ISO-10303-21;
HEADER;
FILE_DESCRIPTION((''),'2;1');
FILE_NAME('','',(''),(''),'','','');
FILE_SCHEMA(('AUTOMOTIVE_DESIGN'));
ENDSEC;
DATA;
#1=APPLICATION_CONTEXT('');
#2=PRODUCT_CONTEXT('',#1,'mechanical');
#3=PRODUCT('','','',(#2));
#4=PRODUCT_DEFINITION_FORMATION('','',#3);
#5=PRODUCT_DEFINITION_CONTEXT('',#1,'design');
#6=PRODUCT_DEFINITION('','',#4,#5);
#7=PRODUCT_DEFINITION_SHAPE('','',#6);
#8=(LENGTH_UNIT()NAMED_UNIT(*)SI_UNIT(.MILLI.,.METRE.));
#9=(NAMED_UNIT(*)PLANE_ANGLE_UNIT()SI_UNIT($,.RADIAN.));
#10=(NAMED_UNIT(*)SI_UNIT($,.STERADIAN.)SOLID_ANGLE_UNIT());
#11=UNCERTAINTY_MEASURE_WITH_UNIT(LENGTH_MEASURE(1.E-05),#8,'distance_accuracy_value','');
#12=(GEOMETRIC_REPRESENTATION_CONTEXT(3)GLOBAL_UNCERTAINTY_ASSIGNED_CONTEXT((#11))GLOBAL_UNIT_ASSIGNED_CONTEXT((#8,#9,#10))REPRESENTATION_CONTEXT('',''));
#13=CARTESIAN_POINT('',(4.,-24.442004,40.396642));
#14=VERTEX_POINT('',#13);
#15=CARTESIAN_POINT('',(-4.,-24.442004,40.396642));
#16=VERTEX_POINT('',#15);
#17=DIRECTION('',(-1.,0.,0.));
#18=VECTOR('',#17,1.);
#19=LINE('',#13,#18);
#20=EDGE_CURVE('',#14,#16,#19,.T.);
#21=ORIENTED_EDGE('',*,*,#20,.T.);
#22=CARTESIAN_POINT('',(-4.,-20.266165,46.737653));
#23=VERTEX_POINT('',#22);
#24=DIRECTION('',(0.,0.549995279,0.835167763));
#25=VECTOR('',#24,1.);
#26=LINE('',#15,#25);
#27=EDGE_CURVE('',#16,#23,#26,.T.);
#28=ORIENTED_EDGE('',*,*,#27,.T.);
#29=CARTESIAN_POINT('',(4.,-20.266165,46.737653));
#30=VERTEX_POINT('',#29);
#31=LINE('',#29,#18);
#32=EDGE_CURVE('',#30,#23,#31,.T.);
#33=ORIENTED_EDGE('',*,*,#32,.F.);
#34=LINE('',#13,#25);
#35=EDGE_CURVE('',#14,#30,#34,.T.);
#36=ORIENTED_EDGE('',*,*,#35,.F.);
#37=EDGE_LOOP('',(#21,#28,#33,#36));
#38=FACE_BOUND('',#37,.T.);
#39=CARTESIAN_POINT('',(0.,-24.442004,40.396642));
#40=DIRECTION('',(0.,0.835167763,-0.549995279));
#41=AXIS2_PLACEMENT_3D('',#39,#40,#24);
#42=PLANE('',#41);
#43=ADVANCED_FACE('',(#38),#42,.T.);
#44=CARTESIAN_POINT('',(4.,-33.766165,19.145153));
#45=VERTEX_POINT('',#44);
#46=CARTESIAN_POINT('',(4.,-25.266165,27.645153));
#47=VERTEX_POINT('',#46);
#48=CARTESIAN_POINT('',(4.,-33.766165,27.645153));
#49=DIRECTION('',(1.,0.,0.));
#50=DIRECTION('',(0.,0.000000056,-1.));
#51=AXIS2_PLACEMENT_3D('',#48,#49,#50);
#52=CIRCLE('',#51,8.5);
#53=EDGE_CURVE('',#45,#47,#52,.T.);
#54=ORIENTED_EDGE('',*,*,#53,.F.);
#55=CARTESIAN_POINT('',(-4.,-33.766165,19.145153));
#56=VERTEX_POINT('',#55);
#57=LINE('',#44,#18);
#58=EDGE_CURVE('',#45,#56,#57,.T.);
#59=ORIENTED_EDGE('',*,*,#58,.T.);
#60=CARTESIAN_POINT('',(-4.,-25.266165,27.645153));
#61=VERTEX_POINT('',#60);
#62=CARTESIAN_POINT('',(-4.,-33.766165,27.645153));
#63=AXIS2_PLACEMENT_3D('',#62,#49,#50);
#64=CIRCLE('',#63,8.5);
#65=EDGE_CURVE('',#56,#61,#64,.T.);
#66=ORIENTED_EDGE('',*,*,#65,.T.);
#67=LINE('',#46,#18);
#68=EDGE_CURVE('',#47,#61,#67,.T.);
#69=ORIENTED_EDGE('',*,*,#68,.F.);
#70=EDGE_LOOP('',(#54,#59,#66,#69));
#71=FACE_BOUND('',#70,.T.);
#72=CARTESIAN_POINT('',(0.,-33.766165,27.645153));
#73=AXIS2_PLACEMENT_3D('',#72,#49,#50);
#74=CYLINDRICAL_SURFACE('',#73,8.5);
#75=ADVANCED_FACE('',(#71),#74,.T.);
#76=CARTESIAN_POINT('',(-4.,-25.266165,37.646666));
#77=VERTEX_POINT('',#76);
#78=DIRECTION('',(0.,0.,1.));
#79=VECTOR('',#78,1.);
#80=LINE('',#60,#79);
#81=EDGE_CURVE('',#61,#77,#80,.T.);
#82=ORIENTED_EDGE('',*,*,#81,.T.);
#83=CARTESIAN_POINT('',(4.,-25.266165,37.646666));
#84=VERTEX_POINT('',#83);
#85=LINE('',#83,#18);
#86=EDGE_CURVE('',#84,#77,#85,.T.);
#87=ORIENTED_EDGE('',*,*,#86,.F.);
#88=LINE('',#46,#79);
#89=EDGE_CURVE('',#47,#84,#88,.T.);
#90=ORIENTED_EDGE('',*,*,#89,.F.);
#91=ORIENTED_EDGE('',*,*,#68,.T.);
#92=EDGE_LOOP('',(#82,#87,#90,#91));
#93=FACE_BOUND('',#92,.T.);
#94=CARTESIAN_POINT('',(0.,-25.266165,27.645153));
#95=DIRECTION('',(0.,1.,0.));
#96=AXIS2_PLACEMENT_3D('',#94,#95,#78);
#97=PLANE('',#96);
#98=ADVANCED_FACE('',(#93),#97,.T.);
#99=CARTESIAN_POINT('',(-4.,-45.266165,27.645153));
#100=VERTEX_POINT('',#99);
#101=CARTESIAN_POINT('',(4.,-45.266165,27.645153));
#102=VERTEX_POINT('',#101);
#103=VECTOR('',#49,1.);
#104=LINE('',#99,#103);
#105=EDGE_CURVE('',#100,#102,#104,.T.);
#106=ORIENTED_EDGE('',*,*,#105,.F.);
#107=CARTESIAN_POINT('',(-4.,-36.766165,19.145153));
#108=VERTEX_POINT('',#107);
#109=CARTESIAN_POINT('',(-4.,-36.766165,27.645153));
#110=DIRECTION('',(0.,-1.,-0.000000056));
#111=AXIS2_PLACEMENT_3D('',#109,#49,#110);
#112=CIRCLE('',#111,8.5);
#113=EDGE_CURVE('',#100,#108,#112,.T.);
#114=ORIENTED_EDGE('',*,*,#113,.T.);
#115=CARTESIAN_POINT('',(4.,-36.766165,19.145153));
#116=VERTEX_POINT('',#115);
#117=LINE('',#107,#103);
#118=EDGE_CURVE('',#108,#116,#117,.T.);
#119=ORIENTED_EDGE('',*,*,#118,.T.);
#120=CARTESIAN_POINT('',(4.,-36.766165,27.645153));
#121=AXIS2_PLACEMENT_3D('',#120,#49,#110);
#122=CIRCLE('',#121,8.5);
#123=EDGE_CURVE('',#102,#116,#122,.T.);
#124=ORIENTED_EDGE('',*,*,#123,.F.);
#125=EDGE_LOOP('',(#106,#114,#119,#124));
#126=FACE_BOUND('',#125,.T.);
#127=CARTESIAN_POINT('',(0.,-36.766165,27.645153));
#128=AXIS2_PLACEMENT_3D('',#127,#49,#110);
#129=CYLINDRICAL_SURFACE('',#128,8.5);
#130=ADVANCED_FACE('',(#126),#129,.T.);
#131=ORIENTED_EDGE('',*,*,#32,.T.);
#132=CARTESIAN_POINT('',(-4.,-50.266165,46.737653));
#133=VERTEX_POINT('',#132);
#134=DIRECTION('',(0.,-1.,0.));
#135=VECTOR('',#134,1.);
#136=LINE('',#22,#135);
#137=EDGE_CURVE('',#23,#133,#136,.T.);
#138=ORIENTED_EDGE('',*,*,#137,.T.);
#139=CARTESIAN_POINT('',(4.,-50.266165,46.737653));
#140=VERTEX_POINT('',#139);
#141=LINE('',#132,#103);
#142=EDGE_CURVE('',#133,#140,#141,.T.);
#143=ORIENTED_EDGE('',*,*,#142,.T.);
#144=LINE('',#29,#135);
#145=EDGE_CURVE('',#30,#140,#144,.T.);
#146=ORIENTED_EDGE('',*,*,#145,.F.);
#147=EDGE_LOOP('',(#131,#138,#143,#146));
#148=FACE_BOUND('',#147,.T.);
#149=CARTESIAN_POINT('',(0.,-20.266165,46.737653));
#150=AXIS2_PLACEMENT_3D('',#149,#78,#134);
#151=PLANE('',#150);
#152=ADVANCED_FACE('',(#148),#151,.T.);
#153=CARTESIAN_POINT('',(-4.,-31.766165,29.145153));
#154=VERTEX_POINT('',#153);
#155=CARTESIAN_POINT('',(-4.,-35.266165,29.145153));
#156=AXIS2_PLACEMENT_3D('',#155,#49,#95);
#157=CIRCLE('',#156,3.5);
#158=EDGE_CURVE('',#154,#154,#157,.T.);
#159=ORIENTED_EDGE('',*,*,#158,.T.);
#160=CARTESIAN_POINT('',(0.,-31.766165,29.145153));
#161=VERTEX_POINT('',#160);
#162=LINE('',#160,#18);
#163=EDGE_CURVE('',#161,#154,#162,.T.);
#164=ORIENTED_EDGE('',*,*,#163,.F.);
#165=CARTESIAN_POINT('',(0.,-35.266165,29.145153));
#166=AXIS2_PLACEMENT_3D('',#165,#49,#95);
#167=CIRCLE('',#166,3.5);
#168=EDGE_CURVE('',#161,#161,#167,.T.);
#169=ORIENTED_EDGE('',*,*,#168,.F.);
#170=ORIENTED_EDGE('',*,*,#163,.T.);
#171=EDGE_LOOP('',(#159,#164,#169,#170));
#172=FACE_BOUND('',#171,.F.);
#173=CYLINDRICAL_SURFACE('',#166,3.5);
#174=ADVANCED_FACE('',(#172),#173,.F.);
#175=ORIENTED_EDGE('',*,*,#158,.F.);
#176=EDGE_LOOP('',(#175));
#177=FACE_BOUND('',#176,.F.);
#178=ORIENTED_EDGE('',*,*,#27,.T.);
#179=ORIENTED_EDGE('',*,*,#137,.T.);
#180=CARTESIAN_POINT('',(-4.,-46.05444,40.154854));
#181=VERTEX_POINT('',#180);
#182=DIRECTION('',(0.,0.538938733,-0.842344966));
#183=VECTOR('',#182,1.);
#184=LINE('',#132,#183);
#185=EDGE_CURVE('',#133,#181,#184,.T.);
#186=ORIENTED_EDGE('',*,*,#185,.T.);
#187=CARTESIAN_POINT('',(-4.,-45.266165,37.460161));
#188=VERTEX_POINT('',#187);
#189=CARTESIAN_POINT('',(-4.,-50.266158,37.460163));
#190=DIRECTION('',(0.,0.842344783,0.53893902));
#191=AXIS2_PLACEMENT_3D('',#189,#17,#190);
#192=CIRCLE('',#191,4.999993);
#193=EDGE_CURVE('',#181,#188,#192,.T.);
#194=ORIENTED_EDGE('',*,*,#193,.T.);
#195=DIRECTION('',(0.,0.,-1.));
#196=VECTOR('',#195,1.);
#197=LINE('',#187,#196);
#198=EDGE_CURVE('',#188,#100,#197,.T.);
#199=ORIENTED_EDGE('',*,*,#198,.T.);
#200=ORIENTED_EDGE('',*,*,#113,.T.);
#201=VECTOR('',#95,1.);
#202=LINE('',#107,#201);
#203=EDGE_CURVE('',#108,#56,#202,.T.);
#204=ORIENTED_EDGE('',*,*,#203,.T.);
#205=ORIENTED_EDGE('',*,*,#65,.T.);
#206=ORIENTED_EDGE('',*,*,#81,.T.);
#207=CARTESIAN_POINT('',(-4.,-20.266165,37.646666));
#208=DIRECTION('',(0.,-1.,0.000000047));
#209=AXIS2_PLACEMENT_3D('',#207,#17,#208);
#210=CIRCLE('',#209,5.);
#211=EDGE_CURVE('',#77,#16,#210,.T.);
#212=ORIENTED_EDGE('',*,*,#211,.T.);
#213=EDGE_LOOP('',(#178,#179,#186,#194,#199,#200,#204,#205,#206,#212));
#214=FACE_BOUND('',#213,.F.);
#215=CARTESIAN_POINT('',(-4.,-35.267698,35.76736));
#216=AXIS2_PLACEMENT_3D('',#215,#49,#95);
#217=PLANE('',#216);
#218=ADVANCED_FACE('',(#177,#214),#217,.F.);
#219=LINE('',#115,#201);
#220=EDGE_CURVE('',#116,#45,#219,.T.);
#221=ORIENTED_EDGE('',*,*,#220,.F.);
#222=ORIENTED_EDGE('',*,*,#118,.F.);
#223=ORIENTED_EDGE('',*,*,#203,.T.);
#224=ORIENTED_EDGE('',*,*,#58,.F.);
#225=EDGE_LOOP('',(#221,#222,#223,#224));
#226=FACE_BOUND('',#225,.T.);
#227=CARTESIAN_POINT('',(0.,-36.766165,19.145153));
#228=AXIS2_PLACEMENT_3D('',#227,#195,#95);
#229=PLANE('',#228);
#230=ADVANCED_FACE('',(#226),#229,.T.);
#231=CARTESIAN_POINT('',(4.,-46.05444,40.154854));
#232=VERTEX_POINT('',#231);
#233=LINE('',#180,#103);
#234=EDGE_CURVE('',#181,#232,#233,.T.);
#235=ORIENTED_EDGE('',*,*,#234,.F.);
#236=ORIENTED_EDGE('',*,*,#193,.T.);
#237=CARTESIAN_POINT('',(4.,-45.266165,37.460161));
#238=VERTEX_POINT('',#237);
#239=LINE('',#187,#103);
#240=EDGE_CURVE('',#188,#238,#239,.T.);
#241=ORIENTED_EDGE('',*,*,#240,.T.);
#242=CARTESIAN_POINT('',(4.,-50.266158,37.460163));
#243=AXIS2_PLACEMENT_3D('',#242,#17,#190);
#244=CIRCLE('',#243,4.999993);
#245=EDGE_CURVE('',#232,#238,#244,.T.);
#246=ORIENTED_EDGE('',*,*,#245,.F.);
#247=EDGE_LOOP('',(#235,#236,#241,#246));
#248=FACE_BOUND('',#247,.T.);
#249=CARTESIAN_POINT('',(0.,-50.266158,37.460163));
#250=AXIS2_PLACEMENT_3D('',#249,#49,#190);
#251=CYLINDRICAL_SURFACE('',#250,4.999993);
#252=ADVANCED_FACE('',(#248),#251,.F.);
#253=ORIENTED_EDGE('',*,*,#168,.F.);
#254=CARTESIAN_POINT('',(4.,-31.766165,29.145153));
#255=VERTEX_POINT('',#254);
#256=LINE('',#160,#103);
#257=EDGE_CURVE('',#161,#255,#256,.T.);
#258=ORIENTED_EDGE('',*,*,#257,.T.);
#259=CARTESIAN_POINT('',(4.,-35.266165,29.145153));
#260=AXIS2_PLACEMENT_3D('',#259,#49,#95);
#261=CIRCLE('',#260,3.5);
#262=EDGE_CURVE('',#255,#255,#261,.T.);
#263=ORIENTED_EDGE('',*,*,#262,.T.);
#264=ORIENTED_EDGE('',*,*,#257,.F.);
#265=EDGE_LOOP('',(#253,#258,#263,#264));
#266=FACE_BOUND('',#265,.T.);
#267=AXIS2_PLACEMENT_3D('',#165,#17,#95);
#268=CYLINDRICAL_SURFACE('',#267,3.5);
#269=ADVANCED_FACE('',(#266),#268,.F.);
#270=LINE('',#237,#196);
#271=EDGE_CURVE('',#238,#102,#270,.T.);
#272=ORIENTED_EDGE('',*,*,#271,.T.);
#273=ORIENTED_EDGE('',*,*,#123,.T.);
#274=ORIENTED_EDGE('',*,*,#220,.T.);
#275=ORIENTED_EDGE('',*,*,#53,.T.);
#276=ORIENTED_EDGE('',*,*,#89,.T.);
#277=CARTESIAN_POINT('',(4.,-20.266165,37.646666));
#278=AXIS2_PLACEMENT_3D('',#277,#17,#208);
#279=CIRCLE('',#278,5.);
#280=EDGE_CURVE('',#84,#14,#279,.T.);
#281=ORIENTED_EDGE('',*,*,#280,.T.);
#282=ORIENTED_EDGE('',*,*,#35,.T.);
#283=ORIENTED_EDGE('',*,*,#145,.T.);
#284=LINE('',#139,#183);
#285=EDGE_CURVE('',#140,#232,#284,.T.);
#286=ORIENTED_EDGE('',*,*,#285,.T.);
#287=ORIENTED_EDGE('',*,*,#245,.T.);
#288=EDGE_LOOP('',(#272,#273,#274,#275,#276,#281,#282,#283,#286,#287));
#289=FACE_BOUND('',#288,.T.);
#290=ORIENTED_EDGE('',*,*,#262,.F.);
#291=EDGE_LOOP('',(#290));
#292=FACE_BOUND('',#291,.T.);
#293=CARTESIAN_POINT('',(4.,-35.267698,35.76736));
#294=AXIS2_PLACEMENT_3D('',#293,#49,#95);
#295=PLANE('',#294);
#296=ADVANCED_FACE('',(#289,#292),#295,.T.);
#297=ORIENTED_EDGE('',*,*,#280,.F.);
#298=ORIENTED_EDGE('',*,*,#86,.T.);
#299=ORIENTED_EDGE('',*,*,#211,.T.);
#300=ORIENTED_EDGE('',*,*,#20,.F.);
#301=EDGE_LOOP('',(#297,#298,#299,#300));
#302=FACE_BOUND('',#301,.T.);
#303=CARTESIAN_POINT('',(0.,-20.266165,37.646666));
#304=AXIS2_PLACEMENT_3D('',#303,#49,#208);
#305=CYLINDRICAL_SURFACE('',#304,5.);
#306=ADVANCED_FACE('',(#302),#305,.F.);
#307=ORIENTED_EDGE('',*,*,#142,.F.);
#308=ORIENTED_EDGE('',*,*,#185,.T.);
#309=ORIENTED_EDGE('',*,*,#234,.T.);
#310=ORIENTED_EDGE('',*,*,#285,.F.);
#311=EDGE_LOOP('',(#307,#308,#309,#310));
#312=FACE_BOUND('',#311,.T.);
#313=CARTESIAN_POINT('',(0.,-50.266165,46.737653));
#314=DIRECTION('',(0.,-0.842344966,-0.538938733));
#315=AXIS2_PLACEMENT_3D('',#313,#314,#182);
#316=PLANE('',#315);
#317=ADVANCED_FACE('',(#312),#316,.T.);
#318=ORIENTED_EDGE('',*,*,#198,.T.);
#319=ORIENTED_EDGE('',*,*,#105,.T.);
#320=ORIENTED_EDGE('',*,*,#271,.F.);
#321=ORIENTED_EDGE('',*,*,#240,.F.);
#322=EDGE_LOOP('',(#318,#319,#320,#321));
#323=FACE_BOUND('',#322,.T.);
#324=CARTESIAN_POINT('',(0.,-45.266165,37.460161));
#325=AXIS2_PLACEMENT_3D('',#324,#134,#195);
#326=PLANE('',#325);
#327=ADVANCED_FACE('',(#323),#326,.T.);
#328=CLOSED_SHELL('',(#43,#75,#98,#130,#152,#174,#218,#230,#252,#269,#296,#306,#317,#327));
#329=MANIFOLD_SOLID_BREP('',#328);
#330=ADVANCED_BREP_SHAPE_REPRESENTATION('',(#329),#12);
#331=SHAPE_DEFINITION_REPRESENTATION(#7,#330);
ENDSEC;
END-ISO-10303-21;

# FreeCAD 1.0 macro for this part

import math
import FreeCAD as App
import Part
import Sketcher

doc = App.newDocument("Part")
params = doc.addObject("Spreadsheet::Sheet", "Params")
for row, (alias, value) in enumerate([
    ("sketch1_diameter", "7 mm"),
    ("sketch1_radius", "5 mm"),
    ("sketch1_radius2", "8.5 mm"),
    ("sketch1_width", "30 mm"),
    ("sketch1_width2", "3 mm"),
    ("pad1_length", "4 mm"),
    ("pad1_length2", "4 mm"),
], start=1):
    params.set(f"A{row}", alias)
    params.set(f"B{row}", "=" + value)
    params.setAlias(f"B{row}", alias)

body = doc.addObject("PartDesign::Body", "Body")

# Sketch on YZ plane
sketch1 = body.newObject("Sketcher::SketchObject", "Sketch")
sketch1.AttachmentSupport = (doc.getObject("YZ_Plane"), [""])
sketch1.MapMode = "FlatFace"
sketch1.addGeometry(Part.LineSegment(App.Vector(-20.3, 46.7, 0), App.Vector(-50.3, 46.7, 0)), False)
sketch1.addGeometry(Part.LineSegment(App.Vector(-50.3, 46.7, 0), App.Vector(-46.1, 40.2, 0)), False)
sketch1.addGeometry(Part.ArcOfCircle(Part.Circle(App.Vector(-50.3, 37.5, 0), App.Vector(0, 0, 1), 5), math.radians(0), math.radians(33)), False)
sketch1.addGeometry(Part.LineSegment(App.Vector(-45.3, 37.5, 0), App.Vector(-45.3, 27.6, 0)), False)
sketch1.addGeometry(Part.ArcOfCircle(Part.Circle(App.Vector(-36.8, 27.6, 0), App.Vector(0, 0, 1), 8.5), math.radians(-180), math.radians(-90)), False)
sketch1.addGeometry(Part.LineSegment(App.Vector(-36.8, 19.1, 0), App.Vector(-33.8, 19.1, 0)), False)
sketch1.addGeometry(Part.ArcOfCircle(Part.Circle(App.Vector(-33.8, 27.6, 0), App.Vector(0, 0, 1), 8.5), math.radians(-90), math.radians(0)), False)
sketch1.addGeometry(Part.LineSegment(App.Vector(-25.3, 27.6, 0), App.Vector(-25.3, 37.6, 0)), False)
sketch1.addGeometry(Part.ArcOfCircle(Part.Circle(App.Vector(-20.3, 37.6, 0), App.Vector(0, 0, 1), 5), math.radians(147), math.radians(180)), False)
sketch1.addGeometry(Part.LineSegment(App.Vector(-24.4, 40.4, 0), App.Vector(-20.3, 46.7, 0)), False)
sketch1.addGeometry(Part.Circle(App.Vector(-35.3, 29.1, 0), App.Vector(0, 0, 1), 3.5), False)
sketch1.addConstraint(Sketcher.Constraint("Coincident", 0, 2, 1, 1))
sketch1.addConstraint(Sketcher.Constraint("Tangent", 1, 2, 2, 2))
sketch1.addConstraint(Sketcher.Constraint("Tangent", 2, 1, 3, 1))
sketch1.addConstraint(Sketcher.Constraint("Tangent", 3, 2, 4, 1))
sketch1.addConstraint(Sketcher.Constraint("Tangent", 4, 2, 5, 1))
sketch1.addConstraint(Sketcher.Constraint("Tangent", 5, 2, 6, 1))
sketch1.addConstraint(Sketcher.Constraint("Tangent", 6, 2, 7, 1))
sketch1.addConstraint(Sketcher.Constraint("Tangent", 7, 2, 8, 2))
sketch1.addConstraint(Sketcher.Constraint("Tangent", 8, 1, 9, 1))
sketch1.addConstraint(Sketcher.Constraint("Coincident", 9, 2, 0, 1))
sketch1.addConstraint(Sketcher.Constraint("Horizontal", 0))
sketch1.addConstraint(Sketcher.Constraint("Vertical", 3))
sketch1.addConstraint(Sketcher.Constraint("Horizontal", 5))
sketch1.addConstraint(Sketcher.Constraint("Vertical", 7))
sketch1.addConstraint(Sketcher.Constraint("Equal", 4, 6))
sketch1.addConstraint(Sketcher.Constraint("Vertical", 8, 3, 9, 2))
sketch1.addConstraint(Sketcher.Constraint("Diameter", 10, 7.0))
sketch1.addConstraint(Sketcher.Constraint("Radius", 8, 5.0))
sketch1.addConstraint(Sketcher.Constraint("Radius", 4, 8.5))
sketch1.addConstraint(Sketcher.Constraint("DistanceX", 0, 2, 0, 1, 30.0))
sketch1.addConstraint(Sketcher.Constraint("DistanceX", 5, 1, 5, 2, 3.0))
sketch1.addConstraint(Sketcher.Constraint("DistanceX", 10, 3, 8, 3, 15.0))
sketch1.addConstraint(Sketcher.Constraint("DistanceY", 4, 2, 10, 3, 10.0))
sketch1.addConstraint(Sketcher.Constraint("Radius", 2, 4.999993))
sketch1.addConstraint(Sketcher.Constraint("Distance", 9, 7.5925))
sketch1.addConstraint(Sketcher.Constraint("DistanceY", 10, 3, 0, 2, 17.5925))
sketch1.addConstraint(Sketcher.Constraint("DistanceY", 1, 2, 0, 2, 6.582799))
sketch1.addConstraint(Sketcher.Constraint("DistanceX", 2, 3, -1, 1, 50.266158))
sketch1.addConstraint(Sketcher.Constraint("DistanceY", -1, 1, 2, 1, 37.460161))
sketch1.setExpression("Constraints[16]", "Params.sketch1_diameter")
sketch1.setExpression("Constraints[17]", "Params.sketch1_radius")
sketch1.setExpression("Constraints[18]", "Params.sketch1_radius2")
sketch1.setExpression("Constraints[19]", "Params.sketch1_width")
sketch1.setExpression("Constraints[20]", "Params.sketch1_width2")
pad1 = body.newObject("PartDesign::Pad", "Pad")
pad1.Profile = sketch1
pad1.Type = "TwoLengths"
pad1.setExpression("Length", "Params.pad1_length")
pad1.setExpression("Length2", "Params.pad1_length2")

doc.recompute()
